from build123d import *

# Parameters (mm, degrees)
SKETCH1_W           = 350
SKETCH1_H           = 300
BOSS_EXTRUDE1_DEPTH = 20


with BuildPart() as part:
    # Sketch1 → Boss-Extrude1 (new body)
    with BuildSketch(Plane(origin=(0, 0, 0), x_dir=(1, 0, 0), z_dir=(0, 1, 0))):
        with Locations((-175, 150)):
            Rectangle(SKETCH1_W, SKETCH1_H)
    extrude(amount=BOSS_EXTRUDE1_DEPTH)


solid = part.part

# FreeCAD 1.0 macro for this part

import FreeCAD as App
import Part
import Sketcher
from FreeCAD import Vector


def add_polygon(sketch, points):
    """Adds a closed chain of lines whose ends are joined by coincident constraints."""
    first, n = sketch.GeometryCount, len(points)
    for a, b in zip(points, points[1:] + points[:1]):
        sketch.addGeometry(Part.LineSegment(App.Vector(*a, 0), App.Vector(*b, 0)), False)
    for i in range(n):
        sketch.addConstraint(Sketcher.Constraint("Coincident", first + i, 2, first + (i + 1) % n, 1))

doc = App.newDocument("Part")
params = doc.addObject("Spreadsheet::Sheet", "Params")
for row, (alias, value) in enumerate([
    ("sketch1_width", "350 mm"),
    ("sketch1_height", "300 mm"),
    ("pad1_length", "20 mm"),
], start=1):
    params.set(f"A{row}", alias)
    params.set(f"B{row}", "=" + value)
    params.setAlias(f"B{row}", alias)

body = doc.addObject("PartDesign::Body", "Body")

# Sketch on XZ plane
sketch1 = body.newObject("Sketcher::SketchObject", "Sketch")
sketch1.AttachmentSupport = (doc.getObject("XZ_Plane"), [""])
sketch1.MapMode = "FlatFace"
add_polygon(sketch1, [(-350, -300), (-350, 0), (0, 0), (0, -300)])  # lines 0-3
sketch1.addConstraint(Sketcher.Constraint("Vertical", 0))
sketch1.addConstraint(Sketcher.Constraint("Horizontal", 1))
sketch1.addConstraint(Sketcher.Constraint("Vertical", 2))
sketch1.addConstraint(Sketcher.Constraint("Horizontal", 3))
sketch1.addConstraint(Sketcher.Constraint("Coincident", 1, 2, -1, 1))
sketch1.addConstraint(Sketcher.Constraint("DistanceX", 1, 1, 1, 2, 350.0))
sketch1.addConstraint(Sketcher.Constraint("DistanceY", 0, 1, 0, 2, 300.0))
sketch1.setExpression("Constraints[9]", "Params.sketch1_width")
sketch1.setExpression("Constraints[10]", "Params.sketch1_height")
pad1 = body.newObject("PartDesign::Pad", "Pad")
pad1.Profile = sketch1
pad1.setExpression("Length", "Params.pad1_length")
pad1.Reversed = True

doc.recompute()
